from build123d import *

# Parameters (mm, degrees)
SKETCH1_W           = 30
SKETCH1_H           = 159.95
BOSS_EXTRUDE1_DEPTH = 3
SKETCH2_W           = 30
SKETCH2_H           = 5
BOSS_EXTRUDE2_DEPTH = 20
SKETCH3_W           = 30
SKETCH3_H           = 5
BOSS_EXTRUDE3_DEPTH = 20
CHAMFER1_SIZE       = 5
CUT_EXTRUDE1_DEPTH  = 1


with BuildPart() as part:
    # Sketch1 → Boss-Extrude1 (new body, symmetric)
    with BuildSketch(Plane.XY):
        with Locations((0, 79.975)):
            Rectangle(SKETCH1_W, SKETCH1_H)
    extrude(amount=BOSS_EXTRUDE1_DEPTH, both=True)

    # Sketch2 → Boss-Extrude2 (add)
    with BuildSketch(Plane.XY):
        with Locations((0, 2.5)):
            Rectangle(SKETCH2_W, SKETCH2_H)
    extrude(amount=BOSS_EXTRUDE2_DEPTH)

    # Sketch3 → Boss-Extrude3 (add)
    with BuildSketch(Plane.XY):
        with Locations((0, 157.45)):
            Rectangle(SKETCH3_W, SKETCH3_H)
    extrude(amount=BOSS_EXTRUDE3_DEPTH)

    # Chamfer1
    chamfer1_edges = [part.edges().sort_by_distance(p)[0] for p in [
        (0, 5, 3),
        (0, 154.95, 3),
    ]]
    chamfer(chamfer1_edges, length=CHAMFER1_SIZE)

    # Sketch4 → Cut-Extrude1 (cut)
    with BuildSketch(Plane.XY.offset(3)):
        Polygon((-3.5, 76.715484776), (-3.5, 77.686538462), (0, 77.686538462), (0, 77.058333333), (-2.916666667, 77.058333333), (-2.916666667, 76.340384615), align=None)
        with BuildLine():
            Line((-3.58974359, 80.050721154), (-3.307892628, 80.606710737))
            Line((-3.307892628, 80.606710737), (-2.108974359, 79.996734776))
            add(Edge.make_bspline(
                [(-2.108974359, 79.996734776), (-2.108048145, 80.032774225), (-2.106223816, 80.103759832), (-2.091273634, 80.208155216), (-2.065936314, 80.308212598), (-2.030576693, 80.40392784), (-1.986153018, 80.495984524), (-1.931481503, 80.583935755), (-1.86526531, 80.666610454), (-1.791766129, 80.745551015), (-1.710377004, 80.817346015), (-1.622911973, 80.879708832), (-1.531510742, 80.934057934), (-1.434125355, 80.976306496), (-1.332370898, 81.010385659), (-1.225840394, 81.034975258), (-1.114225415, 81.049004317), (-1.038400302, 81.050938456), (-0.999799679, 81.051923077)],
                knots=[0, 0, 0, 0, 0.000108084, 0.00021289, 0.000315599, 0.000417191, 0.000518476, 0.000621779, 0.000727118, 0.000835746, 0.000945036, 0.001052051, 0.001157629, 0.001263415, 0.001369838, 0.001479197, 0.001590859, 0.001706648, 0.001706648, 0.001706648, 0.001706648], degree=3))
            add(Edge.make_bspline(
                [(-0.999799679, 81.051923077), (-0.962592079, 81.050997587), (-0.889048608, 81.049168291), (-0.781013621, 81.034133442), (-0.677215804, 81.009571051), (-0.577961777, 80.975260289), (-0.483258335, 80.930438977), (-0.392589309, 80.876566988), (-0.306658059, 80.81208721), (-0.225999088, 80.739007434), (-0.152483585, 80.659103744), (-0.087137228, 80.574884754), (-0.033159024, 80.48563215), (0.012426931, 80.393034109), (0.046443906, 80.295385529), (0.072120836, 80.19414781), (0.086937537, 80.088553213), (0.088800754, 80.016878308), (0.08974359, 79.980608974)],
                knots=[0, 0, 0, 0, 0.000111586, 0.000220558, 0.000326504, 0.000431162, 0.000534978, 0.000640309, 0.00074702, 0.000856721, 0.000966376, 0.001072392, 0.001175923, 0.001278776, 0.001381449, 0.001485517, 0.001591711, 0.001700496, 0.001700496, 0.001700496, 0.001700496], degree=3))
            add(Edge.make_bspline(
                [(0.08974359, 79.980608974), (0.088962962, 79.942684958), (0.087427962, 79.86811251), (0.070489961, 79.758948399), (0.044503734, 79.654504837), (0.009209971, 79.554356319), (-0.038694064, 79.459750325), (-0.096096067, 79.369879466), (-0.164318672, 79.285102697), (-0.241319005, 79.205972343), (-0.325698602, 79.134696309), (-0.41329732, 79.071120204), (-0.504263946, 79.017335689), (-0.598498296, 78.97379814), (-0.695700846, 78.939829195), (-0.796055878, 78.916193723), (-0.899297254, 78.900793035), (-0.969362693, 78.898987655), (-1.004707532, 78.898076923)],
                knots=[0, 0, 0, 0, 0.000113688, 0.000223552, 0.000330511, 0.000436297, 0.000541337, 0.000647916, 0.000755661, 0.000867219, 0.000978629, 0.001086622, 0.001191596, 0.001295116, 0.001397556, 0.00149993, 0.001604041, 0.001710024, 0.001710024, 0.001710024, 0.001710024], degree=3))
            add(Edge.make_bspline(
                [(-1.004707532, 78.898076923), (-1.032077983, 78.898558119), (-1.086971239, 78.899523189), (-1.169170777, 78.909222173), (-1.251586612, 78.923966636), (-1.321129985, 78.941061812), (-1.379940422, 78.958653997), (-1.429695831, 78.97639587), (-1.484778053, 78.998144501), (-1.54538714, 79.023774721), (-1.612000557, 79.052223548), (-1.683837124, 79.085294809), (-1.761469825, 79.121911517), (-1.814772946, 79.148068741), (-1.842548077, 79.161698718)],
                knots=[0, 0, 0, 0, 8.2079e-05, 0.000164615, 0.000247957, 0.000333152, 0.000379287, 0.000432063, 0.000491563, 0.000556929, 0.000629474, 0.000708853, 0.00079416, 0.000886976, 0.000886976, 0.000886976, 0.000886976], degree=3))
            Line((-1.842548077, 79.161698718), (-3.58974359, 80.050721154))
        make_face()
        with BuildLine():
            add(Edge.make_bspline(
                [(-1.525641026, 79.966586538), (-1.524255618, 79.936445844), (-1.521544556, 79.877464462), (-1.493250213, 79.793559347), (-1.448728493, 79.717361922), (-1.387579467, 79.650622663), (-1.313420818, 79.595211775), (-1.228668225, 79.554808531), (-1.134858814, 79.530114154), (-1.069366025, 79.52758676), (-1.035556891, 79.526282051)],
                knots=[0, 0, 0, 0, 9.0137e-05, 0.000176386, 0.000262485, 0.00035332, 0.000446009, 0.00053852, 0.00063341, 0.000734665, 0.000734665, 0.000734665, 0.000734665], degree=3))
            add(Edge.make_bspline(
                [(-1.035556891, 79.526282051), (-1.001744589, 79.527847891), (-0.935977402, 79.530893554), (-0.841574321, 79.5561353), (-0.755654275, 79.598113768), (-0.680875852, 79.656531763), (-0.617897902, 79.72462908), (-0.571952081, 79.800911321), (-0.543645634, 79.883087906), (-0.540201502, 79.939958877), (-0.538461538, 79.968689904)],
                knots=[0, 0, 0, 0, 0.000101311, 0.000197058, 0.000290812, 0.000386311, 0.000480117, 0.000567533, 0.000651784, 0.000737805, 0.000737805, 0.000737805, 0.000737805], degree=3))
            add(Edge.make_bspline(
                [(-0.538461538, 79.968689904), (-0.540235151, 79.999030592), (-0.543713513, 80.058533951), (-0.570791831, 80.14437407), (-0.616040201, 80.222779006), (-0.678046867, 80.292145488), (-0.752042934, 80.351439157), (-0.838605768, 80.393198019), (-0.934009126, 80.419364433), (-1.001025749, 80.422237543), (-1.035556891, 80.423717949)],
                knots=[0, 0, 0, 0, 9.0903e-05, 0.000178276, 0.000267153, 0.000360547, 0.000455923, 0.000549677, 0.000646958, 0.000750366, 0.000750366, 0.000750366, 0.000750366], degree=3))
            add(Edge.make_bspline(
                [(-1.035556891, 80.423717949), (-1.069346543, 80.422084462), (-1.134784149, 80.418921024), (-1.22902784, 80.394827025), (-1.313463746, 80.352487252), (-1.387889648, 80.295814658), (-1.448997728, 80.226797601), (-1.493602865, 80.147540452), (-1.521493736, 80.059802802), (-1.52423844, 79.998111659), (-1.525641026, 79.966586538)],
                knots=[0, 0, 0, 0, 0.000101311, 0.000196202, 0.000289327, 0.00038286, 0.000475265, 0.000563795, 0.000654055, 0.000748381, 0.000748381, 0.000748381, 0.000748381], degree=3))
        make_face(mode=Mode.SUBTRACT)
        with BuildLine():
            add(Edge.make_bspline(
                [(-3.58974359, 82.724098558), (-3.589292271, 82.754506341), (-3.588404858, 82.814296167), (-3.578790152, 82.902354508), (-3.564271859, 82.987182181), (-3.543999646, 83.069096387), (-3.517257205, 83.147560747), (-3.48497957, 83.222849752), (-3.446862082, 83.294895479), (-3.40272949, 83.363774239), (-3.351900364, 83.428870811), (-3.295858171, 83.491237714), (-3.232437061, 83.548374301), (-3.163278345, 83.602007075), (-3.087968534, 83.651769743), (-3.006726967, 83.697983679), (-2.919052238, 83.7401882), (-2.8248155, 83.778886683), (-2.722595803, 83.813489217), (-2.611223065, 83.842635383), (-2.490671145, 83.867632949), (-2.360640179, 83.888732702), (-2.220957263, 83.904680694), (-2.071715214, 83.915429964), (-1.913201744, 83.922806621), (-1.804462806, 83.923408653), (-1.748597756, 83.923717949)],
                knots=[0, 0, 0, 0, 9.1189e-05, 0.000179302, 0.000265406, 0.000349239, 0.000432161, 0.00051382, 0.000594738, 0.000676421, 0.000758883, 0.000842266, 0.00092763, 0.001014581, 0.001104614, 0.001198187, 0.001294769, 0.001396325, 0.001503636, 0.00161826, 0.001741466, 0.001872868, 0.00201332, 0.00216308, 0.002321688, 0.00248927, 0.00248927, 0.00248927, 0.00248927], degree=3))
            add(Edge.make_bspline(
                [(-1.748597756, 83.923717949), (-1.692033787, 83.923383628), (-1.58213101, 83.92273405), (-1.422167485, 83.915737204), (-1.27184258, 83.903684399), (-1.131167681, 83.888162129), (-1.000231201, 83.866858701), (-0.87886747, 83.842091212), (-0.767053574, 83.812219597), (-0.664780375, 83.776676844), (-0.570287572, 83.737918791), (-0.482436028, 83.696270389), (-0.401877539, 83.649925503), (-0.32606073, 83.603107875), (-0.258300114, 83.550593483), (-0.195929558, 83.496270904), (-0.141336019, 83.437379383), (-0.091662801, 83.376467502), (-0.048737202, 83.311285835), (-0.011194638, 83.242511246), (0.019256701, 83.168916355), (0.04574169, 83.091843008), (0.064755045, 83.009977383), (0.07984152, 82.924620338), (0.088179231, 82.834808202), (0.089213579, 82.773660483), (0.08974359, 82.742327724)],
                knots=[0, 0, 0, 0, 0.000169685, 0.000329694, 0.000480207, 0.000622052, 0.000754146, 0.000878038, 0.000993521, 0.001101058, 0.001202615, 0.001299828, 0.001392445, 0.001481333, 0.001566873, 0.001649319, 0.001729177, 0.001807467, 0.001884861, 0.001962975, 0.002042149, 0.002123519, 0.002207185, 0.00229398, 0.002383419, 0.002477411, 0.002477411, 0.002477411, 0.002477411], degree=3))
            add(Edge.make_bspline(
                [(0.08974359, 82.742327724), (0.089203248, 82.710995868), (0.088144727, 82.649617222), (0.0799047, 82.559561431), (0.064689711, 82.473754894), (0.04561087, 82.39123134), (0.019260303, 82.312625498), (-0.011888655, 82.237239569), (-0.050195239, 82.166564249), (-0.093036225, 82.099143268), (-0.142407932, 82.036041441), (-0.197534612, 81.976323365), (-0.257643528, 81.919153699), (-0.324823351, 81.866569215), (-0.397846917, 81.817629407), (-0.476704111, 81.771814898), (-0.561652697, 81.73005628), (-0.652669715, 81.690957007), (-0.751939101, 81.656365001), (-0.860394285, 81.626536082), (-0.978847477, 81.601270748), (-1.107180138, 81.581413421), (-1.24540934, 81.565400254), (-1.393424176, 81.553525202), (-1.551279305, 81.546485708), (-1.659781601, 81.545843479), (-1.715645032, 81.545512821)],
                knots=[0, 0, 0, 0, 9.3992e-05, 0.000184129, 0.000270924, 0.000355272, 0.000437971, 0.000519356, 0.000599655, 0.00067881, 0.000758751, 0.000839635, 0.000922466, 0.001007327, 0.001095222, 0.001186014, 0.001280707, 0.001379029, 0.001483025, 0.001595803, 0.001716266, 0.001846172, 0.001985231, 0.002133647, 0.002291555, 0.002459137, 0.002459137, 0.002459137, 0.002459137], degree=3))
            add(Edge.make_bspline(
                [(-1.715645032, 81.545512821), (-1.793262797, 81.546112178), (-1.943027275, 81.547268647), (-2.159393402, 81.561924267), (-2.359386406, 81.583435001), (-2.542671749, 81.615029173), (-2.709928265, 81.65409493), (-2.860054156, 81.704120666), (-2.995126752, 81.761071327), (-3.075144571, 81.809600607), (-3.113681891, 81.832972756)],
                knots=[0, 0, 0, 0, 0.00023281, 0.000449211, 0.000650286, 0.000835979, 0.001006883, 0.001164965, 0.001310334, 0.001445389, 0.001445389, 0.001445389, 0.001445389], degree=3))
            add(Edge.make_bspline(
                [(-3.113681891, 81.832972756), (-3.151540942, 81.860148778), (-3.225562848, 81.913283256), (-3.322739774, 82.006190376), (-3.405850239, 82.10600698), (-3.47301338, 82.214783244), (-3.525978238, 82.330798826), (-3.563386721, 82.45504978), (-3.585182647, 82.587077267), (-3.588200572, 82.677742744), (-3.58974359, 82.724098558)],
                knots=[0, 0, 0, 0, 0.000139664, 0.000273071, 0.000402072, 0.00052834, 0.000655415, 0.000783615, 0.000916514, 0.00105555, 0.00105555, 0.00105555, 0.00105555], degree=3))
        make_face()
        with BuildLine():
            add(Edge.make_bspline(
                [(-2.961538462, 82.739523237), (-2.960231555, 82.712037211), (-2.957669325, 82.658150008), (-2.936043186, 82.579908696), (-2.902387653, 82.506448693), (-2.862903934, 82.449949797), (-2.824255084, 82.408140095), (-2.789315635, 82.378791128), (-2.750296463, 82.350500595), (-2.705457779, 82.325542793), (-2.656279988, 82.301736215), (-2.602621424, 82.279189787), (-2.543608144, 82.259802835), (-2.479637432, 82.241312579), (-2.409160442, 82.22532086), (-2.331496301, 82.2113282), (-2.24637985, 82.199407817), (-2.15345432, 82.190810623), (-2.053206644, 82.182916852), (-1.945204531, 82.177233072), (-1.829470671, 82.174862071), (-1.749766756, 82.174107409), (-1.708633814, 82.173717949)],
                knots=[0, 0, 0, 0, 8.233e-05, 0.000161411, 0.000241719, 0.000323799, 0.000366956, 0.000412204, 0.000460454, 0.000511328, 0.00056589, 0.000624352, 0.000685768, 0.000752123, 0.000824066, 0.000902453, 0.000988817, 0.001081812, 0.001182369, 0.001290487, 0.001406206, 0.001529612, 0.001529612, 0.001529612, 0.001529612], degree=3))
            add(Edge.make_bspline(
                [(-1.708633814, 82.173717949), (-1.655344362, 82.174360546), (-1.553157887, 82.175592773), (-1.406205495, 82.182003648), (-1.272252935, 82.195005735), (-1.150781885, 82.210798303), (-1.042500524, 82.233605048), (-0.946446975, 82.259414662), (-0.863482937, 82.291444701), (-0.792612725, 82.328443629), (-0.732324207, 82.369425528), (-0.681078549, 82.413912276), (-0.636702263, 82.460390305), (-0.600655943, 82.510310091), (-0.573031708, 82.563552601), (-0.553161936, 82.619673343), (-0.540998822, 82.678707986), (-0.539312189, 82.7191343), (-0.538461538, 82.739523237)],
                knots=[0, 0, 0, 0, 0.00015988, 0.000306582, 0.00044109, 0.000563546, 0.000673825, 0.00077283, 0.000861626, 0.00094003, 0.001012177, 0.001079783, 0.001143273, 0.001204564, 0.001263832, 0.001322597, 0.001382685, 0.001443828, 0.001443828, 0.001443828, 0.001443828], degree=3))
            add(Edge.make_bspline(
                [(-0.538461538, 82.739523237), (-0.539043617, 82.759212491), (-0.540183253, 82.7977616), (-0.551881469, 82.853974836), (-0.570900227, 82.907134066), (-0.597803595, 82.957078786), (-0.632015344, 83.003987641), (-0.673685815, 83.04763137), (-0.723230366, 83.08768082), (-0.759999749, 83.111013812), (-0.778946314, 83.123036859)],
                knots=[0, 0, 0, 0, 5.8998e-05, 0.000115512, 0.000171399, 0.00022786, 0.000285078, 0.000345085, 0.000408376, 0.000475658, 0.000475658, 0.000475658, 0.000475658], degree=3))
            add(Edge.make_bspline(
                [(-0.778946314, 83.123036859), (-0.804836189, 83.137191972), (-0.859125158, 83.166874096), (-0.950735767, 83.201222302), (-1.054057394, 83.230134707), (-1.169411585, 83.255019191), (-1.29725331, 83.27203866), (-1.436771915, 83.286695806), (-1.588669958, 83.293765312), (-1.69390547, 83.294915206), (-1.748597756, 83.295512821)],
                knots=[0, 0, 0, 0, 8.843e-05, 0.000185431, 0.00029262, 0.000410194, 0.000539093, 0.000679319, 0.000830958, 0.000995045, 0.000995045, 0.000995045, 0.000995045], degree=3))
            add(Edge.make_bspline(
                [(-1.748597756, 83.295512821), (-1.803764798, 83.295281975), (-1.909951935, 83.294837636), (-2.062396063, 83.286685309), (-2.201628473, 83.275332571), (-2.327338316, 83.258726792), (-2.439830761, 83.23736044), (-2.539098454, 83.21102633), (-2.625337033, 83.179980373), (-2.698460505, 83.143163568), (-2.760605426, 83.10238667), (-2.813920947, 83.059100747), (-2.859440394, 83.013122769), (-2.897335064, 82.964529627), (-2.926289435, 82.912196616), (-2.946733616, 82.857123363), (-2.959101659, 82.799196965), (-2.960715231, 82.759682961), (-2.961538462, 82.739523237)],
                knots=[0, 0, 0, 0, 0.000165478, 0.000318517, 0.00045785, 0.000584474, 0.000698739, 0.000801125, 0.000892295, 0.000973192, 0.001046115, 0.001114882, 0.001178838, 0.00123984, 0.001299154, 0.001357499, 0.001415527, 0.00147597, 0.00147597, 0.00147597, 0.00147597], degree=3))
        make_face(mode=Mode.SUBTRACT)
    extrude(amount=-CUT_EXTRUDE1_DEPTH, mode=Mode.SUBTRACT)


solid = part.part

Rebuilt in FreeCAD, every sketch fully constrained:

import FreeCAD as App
import Part
import Sketcher

V = App.Vector
Q = App.Units.Quantity


def edges_at(feature, points):
    """Names of the edges that pass closest to the given points."""
    edges = feature.Shape.Edges
    near = lambda p: min(range(len(edges)), key=lambda i: edges[i].distToShape(Part.Vertex(*p))[0])
    return sorted({f"Edge{near(p) + 1}" for p in points})


def add_polygon(sketch, points):
    """Adds a closed chain of lines whose ends are joined by coincident constraints."""
    first, n = sketch.GeometryCount, len(points)
    for a, b in zip(points, points[1:] + points[:1]):
        sketch.addGeometry(Part.LineSegment(App.Vector(*a, 0), App.Vector(*b, 0)), False)
    for i in range(n):
        sketch.addConstraint(Sketcher.Constraint("Coincident", first + i, 2, first + (i + 1) % n, 1))

doc = App.newDocument("Part")
body = doc.addObject("PartDesign::Body", "Body")

# Sketch on XY plane
sketch1 = body.newObject("Sketcher::SketchObject", "Sketch")
sketch1.AttachmentSupport = (doc.getObject("XY_Plane"), [""])
sketch1.MapMode = "FlatFace"
add_polygon(sketch1, [(-15, 160), (-15, 0), (15, 0), (15, 160)])  # lines 0-3
sketch1.addConstraint(Sketcher.Constraint("Vertical", 0))
sketch1.addConstraint(Sketcher.Constraint("Horizontal", 1))
sketch1.addConstraint(Sketcher.Constraint("Vertical", 2))
sketch1.addConstraint(Sketcher.Constraint("Horizontal", 3))
sketch1.addConstraint(Sketcher.Constraint("Symmetric", 0, 2, 1, 2, -1, 1))
sketch1.addConstraint(Sketcher.Constraint("DistanceX", 1, 1, 1, 2, Q("30 mm")))
sketch1.addConstraint(Sketcher.Constraint("DistanceY", 0, 2, 0, 1, Q("159.95 mm")))
pad1 = body.newObject("PartDesign::Pad", "Pad")
pad1.Profile = sketch1
pad1.Length = 6
pad1.Midplane = True

# Sketch on XY plane
sketch2 = body.newObject("Sketcher::SketchObject", "Sketch001")
sketch2.AttachmentSupport = (doc.getObject("XY_Plane"), [""])
sketch2.MapMode = "FlatFace"
add_polygon(sketch2, [(-15, 5), (-15, 0), (15, 0), (15, 5)])  # lines 0-3
sketch2.addConstraint(Sketcher.Constraint("Vertical", 0))
sketch2.addConstraint(Sketcher.Constraint("Horizontal", 1))
sketch2.addConstraint(Sketcher.Constraint("Vertical", 2))
sketch2.addConstraint(Sketcher.Constraint("Horizontal", 3))
sketch2.addConstraint(Sketcher.Constraint("Symmetric", 0, 2, 1, 2, -1, 1))
sketch2.addConstraint(Sketcher.Constraint("DistanceX", 1, 1, 1, 2, Q("30 mm")))
sketch2.addConstraint(Sketcher.Constraint("DistanceY", 0, 2, 0, 1, Q("5 mm")))
pad2 = body.newObject("PartDesign::Pad", "Pad001")
pad2.Profile = sketch2
pad2.Length = 20

# Sketch on XY plane
sketch3 = body.newObject("Sketcher::SketchObject", "Sketch002")
sketch3.AttachmentSupport = (doc.getObject("XY_Plane"), [""])
sketch3.MapMode = "FlatFace"
add_polygon(sketch3, [(-15, 160), (-15, 155), (15, 155), (15, 160)])  # lines 0-3
sketch3.addConstraint(Sketcher.Constraint("Vertical", 0))
sketch3.addConstraint(Sketcher.Constraint("Horizontal", 1))
sketch3.addConstraint(Sketcher.Constraint("Vertical", 2))
sketch3.addConstraint(Sketcher.Constraint("Horizontal", 3))
sketch3.addConstraint(Sketcher.Constraint("DistanceX", 1, 1, 1, 2, Q("30 mm")))
sketch3.addConstraint(Sketcher.Constraint("DistanceY", 0, 2, 0, 1, Q("5 mm")))
sketch3.addConstraint(Sketcher.Constraint("DistanceX", 0, 2, -1, 1, Q("15 mm")))
sketch3.addConstraint(Sketcher.Constraint("DistanceY", -1, 1, 0, 2, Q("154.95 mm")))
pad3 = body.newObject("PartDesign::Pad", "Pad002")
pad3.Profile = sketch3
pad3.Length = 20
doc.recompute()

chamfer = body.newObject("PartDesign::Chamfer", "Chamfer")
chamfer.Base = (pad3, edges_at(pad3, [(0, 5, 3), (0, 154.95, 3)]))
chamfer.Size = 5

# Sketch on XY plane
sketch4 = body.newObject("Sketcher::SketchObject", "Sketch003")
sketch4.AttachmentSupport = (doc.getObject("XY_Plane"), [""])
sketch4.MapMode = "FlatFace"
sketch4.AttachmentOffset = App.Placement(V(0, 0, 3), App.Rotation())
add_polygon(sketch4, [(-3.5, 77.686538), (-3.5, 76.715485), (-2.916667, 76.340385), (-2.916667, 77.058333), (0, 77.058333), (0, 77.686538)])  # lines 0-5
sketch4.addGeometry(Part.LineSegment(V(-3.307893, 80.606711, 0), V(-3.589744, 80.050721, 0)), False)  # 6
sketch4.addGeometry(Part.LineSegment(V(-3.589744, 80.050721, 0), V(-1.842548, 79.161699, 0)), False)  # 7
sketch4.addGeometry(Part.BSplineCurve([V(-1.004708, 78.898077, 0), V(-1.032078, 78.898558, 0), V(-1.086971, 78.899523, 0), V(-1.169171, 78.909222, 0), V(-1.251587, 78.923967, 0), V(-1.32113, 78.941062, 0), V(-1.37994, 78.958654, 0), V(-1.429696, 78.976396, 0), V(-1.484778, 78.998145, 0), V(-1.545387, 79.023775, 0), V(-1.612001, 79.052224, 0), V(-1.683837, 79.085295, 0), V(-1.76147, 79.121912, 0), V(-1.814773, 79.148069, 0), V(-1.842548, 79.161699, 0)], [4, 1, 1, 1, 1, 1, 1, 1, 1, 1, 1, 1, 4], [0, 0.000082079, 0.000164615, 0.000247957, 0.000333152, 0.000379287, 0.000432063, 0.000491563, 0.000556929, 0.000629474, 0.000708853, 0.00079416, 0.000886976], False, 3, [1, 1, 1, 1, 1, 1, 1, 1, 1, 1, 1, 1, 1, 1, 1], False), False)  # 8
sketch4.addGeometry(Part.BSplineCurve([V(0.089744, 79.980609, 0), V(0.088963, 79.942685, 0), V(0.087428, 79.868113, 0), V(0.07049, 79.758948, 0), V(0.044504, 79.654505, 0), V(0.00921, 79.554356, 0), V(-0.038694, 79.45975, 0), V(-0.096096, 79.369879, 0), V(-0.164319, 79.285103, 0), V(-0.241319, 79.205972, 0), V(-0.325699, 79.134696, 0), V(-0.413297, 79.07112, 0), V(-0.504264, 79.017336, 0), V(-0.598498, 78.973798, 0), V(-0.695701, 78.939829, 0), V(-0.796056, 78.916194, 0), V(-0.899297, 78.900793, 0), V(-0.969363, 78.898988, 0), V(-1.004708, 78.898077, 0)], [4, 1, 1, 1, 1, 1, 1, 1, 1, 1, 1, 1, 1, 1, 1, 1, 4], [0, 0.000113688, 0.000223552, 0.000330511, 0.000436297, 0.000541337, 0.000647916, 0.000755661, 0.000867219, 0.000978629, 0.001086622, 0.001191596, 0.001295116, 0.001397556, 0.00149993, 0.001604041, 0.001710024], False, 3, [1, 1, 1, 1, 1, 1, 1, 1, 1, 1, 1, 1, 1, 1, 1, 1, 1, 1, 1], False), False)  # 9
sketch4.addGeometry(Part.BSplineCurve([V(-0.9998, 81.051923, 0), V(-0.962592, 81.050998, 0), V(-0.889049, 81.049168, 0), V(-0.781014, 81.034133, 0), V(-0.677216, 81.009571, 0), V(-0.577962, 80.97526, 0), V(-0.483258, 80.930439, 0), V(-0.392589, 80.876567, 0), V(-0.306658, 80.812087, 0), V(-0.225999, 80.739007, 0), V(-0.152484, 80.659104, 0), V(-0.087137, 80.574885, 0), V(-0.033159, 80.485632, 0), V(0.012427, 80.393034, 0), V(0.046444, 80.295386, 0), V(0.072121, 80.194148, 0), V(0.086938, 80.088553, 0), V(0.088801, 80.016878, 0), V(0.089744, 79.980609, 0)], [4, 1, 1, 1, 1, 1, 1, 1, 1, 1, 1, 1, 1, 1, 1, 1, 4], [0, 0.000111586, 0.000220558, 0.000326504, 0.000431162, 0.000534978, 0.000640309, 0.00074702, 0.000856721, 0.000966376, 0.001072392, 0.001175923, 0.001278776, 0.001381449, 0.001485517, 0.001591711, 0.001700496], False, 3, [1, 1, 1, 1, 1, 1, 1, 1, 1, 1, 1, 1, 1, 1, 1, 1, 1, 1, 1], False), False)  # 10
sketch4.addGeometry(Part.BSplineCurve([V(-2.108974, 79.996735, 0), V(-2.108048, 80.032774, 0), V(-2.106224, 80.10376, 0), V(-2.091274, 80.208155, 0), V(-2.065936, 80.308213, 0), V(-2.030577, 80.403928, 0), V(-1.986153, 80.495985, 0), V(-1.931482, 80.583936, 0), V(-1.865265, 80.66661, 0), V(-1.791766, 80.745551, 0), V(-1.710377, 80.817346, 0), V(-1.622912, 80.879709, 0), V(-1.531511, 80.934058, 0), V(-1.434125, 80.976306, 0), V(-1.332371, 81.010386, 0), V(-1.22584, 81.034975, 0), V(-1.114225, 81.049004, 0), V(-1.0384, 81.050938, 0), V(-0.9998, 81.051923, 0)], [4, 1, 1, 1, 1, 1, 1, 1, 1, 1, 1, 1, 1, 1, 1, 1, 4], [0, 0.000108084, 0.00021289, 0.000315599, 0.000417191, 0.000518476, 0.000621779, 0.000727118, 0.000835746, 0.000945036, 0.001052051, 0.001157629, 0.001263415, 0.001369838, 0.001479197, 0.001590859, 0.001706648], False, 3, [1, 1, 1, 1, 1, 1, 1, 1, 1, 1, 1, 1, 1, 1, 1, 1, 1, 1, 1], False), False)  # 11
sketch4.addGeometry(Part.LineSegment(V(-2.108974, 79.996735, 0), V(-3.307893, 80.606711, 0)), False)  # 12
sketch4.addGeometry(Part.BSplineCurve([V(-1.035557, 80.423718, 0), V(-1.069347, 80.422084, 0), V(-1.134784, 80.418921, 0), V(-1.229028, 80.394827, 0), V(-1.313464, 80.352487, 0), V(-1.38789, 80.295815, 0), V(-1.448998, 80.226798, 0), V(-1.493603, 80.14754, 0), V(-1.521494, 80.059803, 0), V(-1.524238, 79.998112, 0), V(-1.525641, 79.966587, 0)], [4, 1, 1, 1, 1, 1, 1, 1, 4], [0, 0.000101311, 0.000196202, 0.000289327, 0.00038286, 0.000475265, 0.000563795, 0.000654055, 0.000748381], False, 3, [1, 1, 1, 1, 1, 1, 1, 1, 1, 1, 1], False), False)  # 13
sketch4.addGeometry(Part.BSplineCurve([V(-0.538462, 79.96869, 0), V(-0.540235, 79.999031, 0), V(-0.543714, 80.058534, 0), V(-0.570792, 80.144374, 0), V(-0.61604, 80.222779, 0), V(-0.678047, 80.292145, 0), V(-0.752043, 80.351439, 0), V(-0.838606, 80.393198, 0), V(-0.934009, 80.419364, 0), V(-1.001026, 80.422238, 0), V(-1.035557, 80.423718, 0)], [4, 1, 1, 1, 1, 1, 1, 1, 4], [0, 0.000090903, 0.000178276, 0.000267153, 0.000360547, 0.000455923, 0.000549677, 0.000646958, 0.000750366], False, 3, [1, 1, 1, 1, 1, 1, 1, 1, 1, 1, 1], False), False)  # 14
sketch4.addGeometry(Part.BSplineCurve([V(-1.035557, 79.526282, 0), V(-1.001745, 79.527848, 0), V(-0.935977, 79.530894, 0), V(-0.841574, 79.556135, 0), V(-0.755654, 79.598114, 0), V(-0.680876, 79.656532, 0), V(-0.617898, 79.724629, 0), V(-0.571952, 79.800911, 0), V(-0.543646, 79.883088, 0), V(-0.540202, 79.939959, 0), V(-0.538462, 79.96869, 0)], [4, 1, 1, 1, 1, 1, 1, 1, 4], [0, 0.000101311, 0.000197058, 0.000290812, 0.000386311, 0.000480117, 0.000567533, 0.000651784, 0.000737805], False, 3, [1, 1, 1, 1, 1, 1, 1, 1, 1, 1, 1], False), False)  # 15
sketch4.addGeometry(Part.BSplineCurve([V(-1.525641, 79.966587, 0), V(-1.524256, 79.936446, 0), V(-1.521545, 79.877464, 0), V(-1.49325, 79.793559, 0), V(-1.448728, 79.717362, 0), V(-1.387579, 79.650623, 0), V(-1.313421, 79.595212, 0), V(-1.228668, 79.554809, 0), V(-1.134859, 79.530114, 0), V(-1.069366, 79.527587, 0), V(-1.035557, 79.526282, 0)], [4, 1, 1, 1, 1, 1, 1, 1, 4], [0, 0.000090137, 0.000176386, 0.000262485, 0.00035332, 0.000446009, 0.00053852, 0.00063341, 0.000734665], False, 3, [1, 1, 1, 1, 1, 1, 1, 1, 1, 1, 1], False), False)  # 16
sketch4.addGeometry(Part.BSplineCurve([V(-3.589744, 82.724099, 0), V(-3.589292, 82.754506, 0), V(-3.588405, 82.814296, 0), V(-3.57879, 82.902355, 0), V(-3.564272, 82.987182, 0), V(-3.544, 83.069096, 0), V(-3.517257, 83.147561, 0), V(-3.48498, 83.22285, 0), V(-3.446862, 83.294895, 0), V(-3.402729, 83.363774, 0), V(-3.3519, 83.428871, 0), V(-3.295858, 83.491238, 0), V(-3.232437, 83.548374, 0), V(-3.163278, 83.602007, 0), V(-3.087969, 83.65177, 0), V(-3.006727, 83.697984, 0), V(-2.919052, 83.740188, 0), V(-2.824816, 83.778887, 0), V(-2.722596, 83.813489, 0), V(-2.611223, 83.842635, 0), V(-2.490671, 83.867633, 0), V(-2.36064, 83.888733, 0), V(-2.220957, 83.904681, 0), V(-2.071715, 83.91543, 0), V(-1.913202, 83.922807, 0), V(-1.804463, 83.923409, 0), V(-1.748598, 83.923718, 0)], [4, 1, 1, 1, 1, 1, 1, 1, 1, 1, 1, 1, 1, 1, 1, 1, 1, 1, 1, 1, 1, 1, 1, 1, 4], [0, 0.000091189, 0.000179302, 0.000265406, 0.000349239, 0.000432161, 0.00051382, 0.000594738, 0.000676421, 0.000758883, 0.000842266, 0.00092763, 0.001014581, 0.001104614, 0.001198187, 0.001294769, 0.001396325, 0.001503636, 0.00161826, 0.001741466, 0.001872868, 0.00201332, 0.00216308, 0.002321688, 0.00248927], False, 3, [1, 1, 1, 1, 1, 1, 1, 1, 1, 1, 1, 1, 1, 1, 1, 1, 1, 1, 1, 1, 1, 1, 1, 1, 1, 1, 1], False), False)  # 17
sketch4.addGeometry(Part.BSplineCurve([V(-3.113682, 81.832973, 0), V(-3.151541, 81.860149, 0), V(-3.225563, 81.913283, 0), V(-3.32274, 82.00619, 0), V(-3.40585, 82.106007, 0), V(-3.473013, 82.214783, 0), V(-3.525978, 82.330799, 0), V(-3.563387, 82.45505, 0), V(-3.585183, 82.587077, 0), V(-3.588201, 82.677743, 0), V(-3.589744, 82.724099, 0)], [4, 1, 1, 1, 1, 1, 1, 1, 4], [0, 0.000139664, 0.000273071, 0.000402072, 0.00052834, 0.000655415, 0.000783615, 0.000916514, 0.00105555], False, 3, [1, 1, 1, 1, 1, 1, 1, 1, 1, 1, 1], False), False)  # 18
sketch4.addGeometry(Part.BSplineCurve([V(-1.715645, 81.545513, 0), V(-1.793263, 81.546112, 0), V(-1.943027, 81.547269, 0), V(-2.159393, 81.561924, 0), V(-2.359386, 81.583435, 0), V(-2.542672, 81.615029, 0), V(-2.709928, 81.654095, 0), V(-2.860054, 81.704121, 0), V(-2.995127, 81.761071, 0), V(-3.075145, 81.809601, 0), V(-3.113682, 81.832973, 0)], [4, 1, 1, 1, 1, 1, 1, 1, 4], [0, 0.00023281, 0.000449211, 0.000650286, 0.000835979, 0.001006883, 0.001164965, 0.001310334, 0.001445389], False, 3, [1, 1, 1, 1, 1, 1, 1, 1, 1, 1, 1], False), False)  # 19
sketch4.addGeometry(Part.BSplineCurve([V(0.089744, 82.742328, 0), V(0.089203, 82.710996, 0), V(0.088145, 82.649617, 0), V(0.079905, 82.559561, 0), V(0.06469, 82.473755, 0), V(0.045611, 82.391231, 0), V(0.01926, 82.312625, 0), V(-0.011889, 82.23724, 0), V(-0.050195, 82.166564, 0), V(-0.093036, 82.099143, 0), V(-0.142408, 82.036041, 0), V(-0.197535, 81.976323, 0), V(-0.257644, 81.919154, 0), V(-0.324823, 81.866569, 0), V(-0.397847, 81.817629, 0), V(-0.476704, 81.771815, 0), V(-0.561653, 81.730056, 0), V(-0.65267, 81.690957, 0), V(-0.751939, 81.656365, 0), V(-0.860394, 81.626536, 0), V(-0.978847, 81.601271, 0), V(-1.10718, 81.581413, 0), V(-1.245409, 81.5654, 0), V(-1.393424, 81.553525, 0), V(-1.551279, 81.546486, 0), V(-1.659782, 81.545843, 0), V(-1.715645, 81.545513, 0)], [4, 1, 1, 1, 1, 1, 1, 1, 1, 1, 1, 1, 1, 1, 1, 1, 1, 1, 1, 1, 1, 1, 1, 1, 4], [0, 0.000093992, 0.000184129, 0.000270924, 0.000355272, 0.000437971, 0.000519356, 0.000599655, 0.00067881, 0.000758751, 0.000839635, 0.000922466, 0.001007327, 0.001095222, 0.001186014, 0.001280707, 0.001379029, 0.001483025, 0.001595803, 0.001716266, 0.001846172, 0.001985231, 0.002133647, 0.002291555, 0.002459137], False, 3, [1, 1, 1, 1, 1, 1, 1, 1, 1, 1, 1, 1, 1, 1, 1, 1, 1, 1, 1, 1, 1, 1, 1, 1, 1, 1, 1], False), False)  # 20
sketch4.addGeometry(Part.BSplineCurve([V(-1.748598, 83.923718, 0), V(-1.692034, 83.923384, 0), V(-1.582131, 83.922734, 0), V(-1.422167, 83.915737, 0), V(-1.271843, 83.903684, 0), V(-1.131168, 83.888162, 0), V(-1.000231, 83.866859, 0), V(-0.878867, 83.842091, 0), V(-0.767054, 83.81222, 0), V(-0.66478, 83.776677, 0), V(-0.570288, 83.737919, 0), V(-0.482436, 83.69627, 0), V(-0.401878, 83.649926, 0), V(-0.326061, 83.603108, 0), V(-0.2583, 83.550593, 0), V(-0.19593, 83.496271, 0), V(-0.141336, 83.437379, 0), V(-0.091663, 83.376468, 0), V(-0.048737, 83.311286, 0), V(-0.011195, 83.242511, 0), V(0.019257, 83.168916, 0), V(0.045742, 83.091843, 0), V(0.064755, 83.009977, 0), V(0.079842, 82.92462, 0), V(0.088179, 82.834808, 0), V(0.089214, 82.77366, 0), V(0.089744, 82.742328, 0)], [4, 1, 1, 1, 1, 1, 1, 1, 1, 1, 1, 1, 1, 1, 1, 1, 1, 1, 1, 1, 1, 1, 1, 1, 4], [0, 0.000169685, 0.000329694, 0.000480207, 0.000622052, 0.000754146, 0.000878038, 0.000993521, 0.001101058, 0.001202615, 0.001299828, 0.001392445, 0.001481333, 0.001566873, 0.001649319, 0.001729177, 0.001807467, 0.001884861, 0.001962975, 0.002042149, 0.002123519, 0.002207185, 0.00229398, 0.002383419, 0.002477411], False, 3, [1, 1, 1, 1, 1, 1, 1, 1, 1, 1, 1, 1, 1, 1, 1, 1, 1, 1, 1, 1, 1, 1, 1, 1, 1, 1, 1], False), False)  # 21
sketch4.addGeometry(Part.BSplineCurve([V(-1.748598, 83.295513, 0), V(-1.803765, 83.295282, 0), V(-1.909952, 83.294838, 0), V(-2.062396, 83.286685, 0), V(-2.201628, 83.275333, 0), V(-2.327338, 83.258727, 0), V(-2.439831, 83.23736, 0), V(-2.539098, 83.211026, 0), V(-2.625337, 83.17998, 0), V(-2.698461, 83.143164, 0), V(-2.760605, 83.102387, 0), V(-2.813921, 83.059101, 0), V(-2.85944, 83.013123, 0), V(-2.897335, 82.96453, 0), V(-2.926289, 82.912197, 0), V(-2.946734, 82.857123, 0), V(-2.959102, 82.799197, 0), V(-2.960715, 82.759683, 0), V(-2.961538, 82.739523, 0)], [4, 1, 1, 1, 1, 1, 1, 1, 1, 1, 1, 1, 1, 1, 1, 1, 4], [0, 0.000165478, 0.000318517, 0.00045785, 0.000584474, 0.000698739, 0.000801125, 0.000892295, 0.000973192, 0.001046115, 0.001114882, 0.001178838, 0.00123984, 0.001299154, 0.001357499, 0.001415527, 0.00147597], False, 3, [1, 1, 1, 1, 1, 1, 1, 1, 1, 1, 1, 1, 1, 1, 1, 1, 1, 1, 1], False), False)  # 22
sketch4.addGeometry(Part.BSplineCurve([V(-0.778946, 83.123037, 0), V(-0.804836, 83.137192, 0), V(-0.859125, 83.166874, 0), V(-0.950736, 83.201222, 0), V(-1.054057, 83.230135, 0), V(-1.169412, 83.255019, 0), V(-1.297253, 83.272039, 0), V(-1.436772, 83.286696, 0), V(-1.58867, 83.293765, 0), V(-1.693905, 83.294915, 0), V(-1.748598, 83.295513, 0)], [4, 1, 1, 1, 1, 1, 1, 1, 4], [0, 0.00008843, 0.000185431, 0.00029262, 0.000410194, 0.000539093, 0.000679319, 0.000830958, 0.000995045], False, 3, [1, 1, 1, 1, 1, 1, 1, 1, 1, 1, 1], False), False)  # 23
sketch4.addGeometry(Part.BSplineCurve([V(-0.538462, 82.739523, 0), V(-0.539044, 82.759212, 0), V(-0.540183, 82.797762, 0), V(-0.551881, 82.853975, 0), V(-0.5709, 82.907134, 0), V(-0.597804, 82.957079, 0), V(-0.632015, 83.003988, 0), V(-0.673686, 83.047631, 0), V(-0.72323, 83.087681, 0), V(-0.76, 83.111014, 0), V(-0.778946, 83.123037, 0)], [4, 1, 1, 1, 1, 1, 1, 1, 4], [0, 0.000058998, 0.000115512, 0.000171399, 0.00022786, 0.000285078, 0.000345085, 0.000408376, 0.000475658], False, 3, [1, 1, 1, 1, 1, 1, 1, 1, 1, 1, 1], False), False)  # 24
sketch4.addGeometry(Part.BSplineCurve([V(-1.708634, 82.173718, 0), V(-1.655344, 82.174361, 0), V(-1.553158, 82.175593, 0), V(-1.406205, 82.182004, 0), V(-1.272253, 82.195006, 0), V(-1.150782, 82.210798, 0), V(-1.042501, 82.233605, 0), V(-0.946447, 82.259415, 0), V(-0.863483, 82.291445, 0), V(-0.792613, 82.328444, 0), V(-0.732324, 82.369426, 0), V(-0.681079, 82.413912, 0), V(-0.636702, 82.46039, 0), V(-0.600656, 82.51031, 0), V(-0.573032, 82.563553, 0), V(-0.553162, 82.619673, 0), V(-0.540999, 82.678708, 0), V(-0.539312, 82.719134, 0), V(-0.538462, 82.739523, 0)], [4, 1, 1, 1, 1, 1, 1, 1, 1, 1, 1, 1, 1, 1, 1, 1, 4], [0, 0.00015988, 0.000306582, 0.00044109, 0.000563546, 0.000673825, 0.00077283, 0.000861626, 0.00094003, 0.001012177, 0.001079783, 0.001143273, 0.001204564, 0.001263832, 0.001322597, 0.001382685, 0.001443828], False, 3, [1, 1, 1, 1, 1, 1, 1, 1, 1, 1, 1, 1, 1, 1, 1, 1, 1, 1, 1], False), False)  # 25
sketch4.addGeometry(Part.BSplineCurve([V(-2.961538, 82.739523, 0), V(-2.960232, 82.712037, 0), V(-2.957669, 82.65815, 0), V(-2.936043, 82.579909, 0), V(-2.902388, 82.506449, 0), V(-2.862904, 82.44995, 0), V(-2.824255, 82.40814, 0), V(-2.789316, 82.378791, 0), V(-2.750296, 82.350501, 0), V(-2.705458, 82.325543, 0), V(-2.65628, 82.301736, 0), V(-2.602621, 82.27919, 0), V(-2.543608, 82.259803, 0), V(-2.479637, 82.241313, 0), V(-2.40916, 82.225321, 0), V(-2.331496, 82.211328, 0), V(-2.24638, 82.199408, 0), V(-2.153454, 82.190811, 0), V(-2.053207, 82.182917, 0), V(-1.945205, 82.177233, 0), V(-1.829471, 82.174862, 0), V(-1.749767, 82.174107, 0), V(-1.708634, 82.173718, 0)], [4, 1, 1, 1, 1, 1, 1, 1, 1, 1, 1, 1, 1, 1, 1, 1, 1, 1, 1, 1, 4], [0, 0.00008233, 0.000161411, 0.000241719, 0.000323799, 0.000366956, 0.000412204, 0.000460454, 0.000511328, 0.00056589, 0.000624352, 0.000685768, 0.000752123, 0.000824066, 0.000902453, 0.000988817, 0.001081812, 0.001182369, 0.001290487, 0.001406206, 0.001529612], False, 3, [1, 1, 1, 1, 1, 1, 1, 1, 1, 1, 1, 1, 1, 1, 1, 1, 1, 1, 1, 1, 1, 1, 1], False), False)  # 26
sketch4.addConstraint(Sketcher.Constraint("Block", 8))
sketch4.addConstraint(Sketcher.Constraint("Block", 9))
sketch4.addConstraint(Sketcher.Constraint("Block", 10))
sketch4.addConstraint(Sketcher.Constraint("Block", 11))
sketch4.addConstraint(Sketcher.Constraint("Block", 13))
sketch4.addConstraint(Sketcher.Constraint("Block", 14))
sketch4.addConstraint(Sketcher.Constraint("Block", 15))
sketch4.addConstraint(Sketcher.Constraint("Block", 16))
sketch4.addConstraint(Sketcher.Constraint("Block", 17))
sketch4.addConstraint(Sketcher.Constraint("Block", 18))
sketch4.addConstraint(Sketcher.Constraint("Block", 19))
sketch4.addConstraint(Sketcher.Constraint("Block", 20))
sketch4.addConstraint(Sketcher.Constraint("Block", 21))
sketch4.addConstraint(Sketcher.Constraint("Block", 22))
sketch4.addConstraint(Sketcher.Constraint("Block", 23))
sketch4.addConstraint(Sketcher.Constraint("Block", 24))
sketch4.addConstraint(Sketcher.Constraint("Block", 25))
sketch4.addConstraint(Sketcher.Constraint("Block", 26))
sketch4.addConstraint(Sketcher.Constraint("Coincident", 6, 2, 7, 1))
sketch4.addConstraint(Sketcher.Constraint("Coincident", 7, 2, 8, 2))
sketch4.addConstraint(Sketcher.Constraint("Coincident", 11, 1, 12, 1))
sketch4.addConstraint(Sketcher.Constraint("Coincident", 12, 2, 6, 1))
sketch4.addConstraint(Sketcher.Constraint("Vertical", 0))
sketch4.addConstraint(Sketcher.Constraint("Vertical", 2))
sketch4.addConstraint(Sketcher.Constraint("Horizontal", 3))
sketch4.addConstraint(Sketcher.Constraint("Vertical", 4))
sketch4.addConstraint(Sketcher.Constraint("Horizontal", 5))
sketch4.addConstraint(Sketcher.Constraint("PointOnObject", 3, 2, -2))
sketch4.addConstraint(Sketcher.Constraint("DistanceX", 5, 2, 5, 1, Q("3.5 mm")))
sketch4.addConstraint(Sketcher.Constraint("DistanceY", 2, 1, 2, 2, Q("0.717949 mm")))
sketch4.addConstraint(Sketcher.Constraint("DistanceY", 1, 2, 0, 2, Q("0.3751 mm")))
sketch4.addConstraint(Sketcher.Constraint("Distance", 6, Q("0.623349 mm")))
sketch4.addConstraint(Sketcher.Constraint("Distance", 7, Q("1.960371 mm")))
sketch4.addConstraint(Sketcher.Constraint("DistanceX", 3, 1, 3, 2, Q("2.916667 mm")))
sketch4.addConstraint(Sketcher.Constraint("DistanceY", 0, 2, 0, 1, Q("0.971054 mm")))
sketch4.addConstraint(Sketcher.Constraint("DistanceY", -1, 1, 4, 2, Q("77.686538 mm")))
sketch4.addConstraint(Sketcher.Constraint("DistanceY", -1, 1, 6, 2, Q("80.050721 mm")))
sketch4.addConstraint(Sketcher.Constraint("DistanceY", -1, 1, 12, 2, Q("80.606711 mm")))
pocket1 = body.newObject("PartDesign::Pocket", "Pocket")
pocket1.Profile = sketch4
pocket1.Length = 1

doc.recompute()
